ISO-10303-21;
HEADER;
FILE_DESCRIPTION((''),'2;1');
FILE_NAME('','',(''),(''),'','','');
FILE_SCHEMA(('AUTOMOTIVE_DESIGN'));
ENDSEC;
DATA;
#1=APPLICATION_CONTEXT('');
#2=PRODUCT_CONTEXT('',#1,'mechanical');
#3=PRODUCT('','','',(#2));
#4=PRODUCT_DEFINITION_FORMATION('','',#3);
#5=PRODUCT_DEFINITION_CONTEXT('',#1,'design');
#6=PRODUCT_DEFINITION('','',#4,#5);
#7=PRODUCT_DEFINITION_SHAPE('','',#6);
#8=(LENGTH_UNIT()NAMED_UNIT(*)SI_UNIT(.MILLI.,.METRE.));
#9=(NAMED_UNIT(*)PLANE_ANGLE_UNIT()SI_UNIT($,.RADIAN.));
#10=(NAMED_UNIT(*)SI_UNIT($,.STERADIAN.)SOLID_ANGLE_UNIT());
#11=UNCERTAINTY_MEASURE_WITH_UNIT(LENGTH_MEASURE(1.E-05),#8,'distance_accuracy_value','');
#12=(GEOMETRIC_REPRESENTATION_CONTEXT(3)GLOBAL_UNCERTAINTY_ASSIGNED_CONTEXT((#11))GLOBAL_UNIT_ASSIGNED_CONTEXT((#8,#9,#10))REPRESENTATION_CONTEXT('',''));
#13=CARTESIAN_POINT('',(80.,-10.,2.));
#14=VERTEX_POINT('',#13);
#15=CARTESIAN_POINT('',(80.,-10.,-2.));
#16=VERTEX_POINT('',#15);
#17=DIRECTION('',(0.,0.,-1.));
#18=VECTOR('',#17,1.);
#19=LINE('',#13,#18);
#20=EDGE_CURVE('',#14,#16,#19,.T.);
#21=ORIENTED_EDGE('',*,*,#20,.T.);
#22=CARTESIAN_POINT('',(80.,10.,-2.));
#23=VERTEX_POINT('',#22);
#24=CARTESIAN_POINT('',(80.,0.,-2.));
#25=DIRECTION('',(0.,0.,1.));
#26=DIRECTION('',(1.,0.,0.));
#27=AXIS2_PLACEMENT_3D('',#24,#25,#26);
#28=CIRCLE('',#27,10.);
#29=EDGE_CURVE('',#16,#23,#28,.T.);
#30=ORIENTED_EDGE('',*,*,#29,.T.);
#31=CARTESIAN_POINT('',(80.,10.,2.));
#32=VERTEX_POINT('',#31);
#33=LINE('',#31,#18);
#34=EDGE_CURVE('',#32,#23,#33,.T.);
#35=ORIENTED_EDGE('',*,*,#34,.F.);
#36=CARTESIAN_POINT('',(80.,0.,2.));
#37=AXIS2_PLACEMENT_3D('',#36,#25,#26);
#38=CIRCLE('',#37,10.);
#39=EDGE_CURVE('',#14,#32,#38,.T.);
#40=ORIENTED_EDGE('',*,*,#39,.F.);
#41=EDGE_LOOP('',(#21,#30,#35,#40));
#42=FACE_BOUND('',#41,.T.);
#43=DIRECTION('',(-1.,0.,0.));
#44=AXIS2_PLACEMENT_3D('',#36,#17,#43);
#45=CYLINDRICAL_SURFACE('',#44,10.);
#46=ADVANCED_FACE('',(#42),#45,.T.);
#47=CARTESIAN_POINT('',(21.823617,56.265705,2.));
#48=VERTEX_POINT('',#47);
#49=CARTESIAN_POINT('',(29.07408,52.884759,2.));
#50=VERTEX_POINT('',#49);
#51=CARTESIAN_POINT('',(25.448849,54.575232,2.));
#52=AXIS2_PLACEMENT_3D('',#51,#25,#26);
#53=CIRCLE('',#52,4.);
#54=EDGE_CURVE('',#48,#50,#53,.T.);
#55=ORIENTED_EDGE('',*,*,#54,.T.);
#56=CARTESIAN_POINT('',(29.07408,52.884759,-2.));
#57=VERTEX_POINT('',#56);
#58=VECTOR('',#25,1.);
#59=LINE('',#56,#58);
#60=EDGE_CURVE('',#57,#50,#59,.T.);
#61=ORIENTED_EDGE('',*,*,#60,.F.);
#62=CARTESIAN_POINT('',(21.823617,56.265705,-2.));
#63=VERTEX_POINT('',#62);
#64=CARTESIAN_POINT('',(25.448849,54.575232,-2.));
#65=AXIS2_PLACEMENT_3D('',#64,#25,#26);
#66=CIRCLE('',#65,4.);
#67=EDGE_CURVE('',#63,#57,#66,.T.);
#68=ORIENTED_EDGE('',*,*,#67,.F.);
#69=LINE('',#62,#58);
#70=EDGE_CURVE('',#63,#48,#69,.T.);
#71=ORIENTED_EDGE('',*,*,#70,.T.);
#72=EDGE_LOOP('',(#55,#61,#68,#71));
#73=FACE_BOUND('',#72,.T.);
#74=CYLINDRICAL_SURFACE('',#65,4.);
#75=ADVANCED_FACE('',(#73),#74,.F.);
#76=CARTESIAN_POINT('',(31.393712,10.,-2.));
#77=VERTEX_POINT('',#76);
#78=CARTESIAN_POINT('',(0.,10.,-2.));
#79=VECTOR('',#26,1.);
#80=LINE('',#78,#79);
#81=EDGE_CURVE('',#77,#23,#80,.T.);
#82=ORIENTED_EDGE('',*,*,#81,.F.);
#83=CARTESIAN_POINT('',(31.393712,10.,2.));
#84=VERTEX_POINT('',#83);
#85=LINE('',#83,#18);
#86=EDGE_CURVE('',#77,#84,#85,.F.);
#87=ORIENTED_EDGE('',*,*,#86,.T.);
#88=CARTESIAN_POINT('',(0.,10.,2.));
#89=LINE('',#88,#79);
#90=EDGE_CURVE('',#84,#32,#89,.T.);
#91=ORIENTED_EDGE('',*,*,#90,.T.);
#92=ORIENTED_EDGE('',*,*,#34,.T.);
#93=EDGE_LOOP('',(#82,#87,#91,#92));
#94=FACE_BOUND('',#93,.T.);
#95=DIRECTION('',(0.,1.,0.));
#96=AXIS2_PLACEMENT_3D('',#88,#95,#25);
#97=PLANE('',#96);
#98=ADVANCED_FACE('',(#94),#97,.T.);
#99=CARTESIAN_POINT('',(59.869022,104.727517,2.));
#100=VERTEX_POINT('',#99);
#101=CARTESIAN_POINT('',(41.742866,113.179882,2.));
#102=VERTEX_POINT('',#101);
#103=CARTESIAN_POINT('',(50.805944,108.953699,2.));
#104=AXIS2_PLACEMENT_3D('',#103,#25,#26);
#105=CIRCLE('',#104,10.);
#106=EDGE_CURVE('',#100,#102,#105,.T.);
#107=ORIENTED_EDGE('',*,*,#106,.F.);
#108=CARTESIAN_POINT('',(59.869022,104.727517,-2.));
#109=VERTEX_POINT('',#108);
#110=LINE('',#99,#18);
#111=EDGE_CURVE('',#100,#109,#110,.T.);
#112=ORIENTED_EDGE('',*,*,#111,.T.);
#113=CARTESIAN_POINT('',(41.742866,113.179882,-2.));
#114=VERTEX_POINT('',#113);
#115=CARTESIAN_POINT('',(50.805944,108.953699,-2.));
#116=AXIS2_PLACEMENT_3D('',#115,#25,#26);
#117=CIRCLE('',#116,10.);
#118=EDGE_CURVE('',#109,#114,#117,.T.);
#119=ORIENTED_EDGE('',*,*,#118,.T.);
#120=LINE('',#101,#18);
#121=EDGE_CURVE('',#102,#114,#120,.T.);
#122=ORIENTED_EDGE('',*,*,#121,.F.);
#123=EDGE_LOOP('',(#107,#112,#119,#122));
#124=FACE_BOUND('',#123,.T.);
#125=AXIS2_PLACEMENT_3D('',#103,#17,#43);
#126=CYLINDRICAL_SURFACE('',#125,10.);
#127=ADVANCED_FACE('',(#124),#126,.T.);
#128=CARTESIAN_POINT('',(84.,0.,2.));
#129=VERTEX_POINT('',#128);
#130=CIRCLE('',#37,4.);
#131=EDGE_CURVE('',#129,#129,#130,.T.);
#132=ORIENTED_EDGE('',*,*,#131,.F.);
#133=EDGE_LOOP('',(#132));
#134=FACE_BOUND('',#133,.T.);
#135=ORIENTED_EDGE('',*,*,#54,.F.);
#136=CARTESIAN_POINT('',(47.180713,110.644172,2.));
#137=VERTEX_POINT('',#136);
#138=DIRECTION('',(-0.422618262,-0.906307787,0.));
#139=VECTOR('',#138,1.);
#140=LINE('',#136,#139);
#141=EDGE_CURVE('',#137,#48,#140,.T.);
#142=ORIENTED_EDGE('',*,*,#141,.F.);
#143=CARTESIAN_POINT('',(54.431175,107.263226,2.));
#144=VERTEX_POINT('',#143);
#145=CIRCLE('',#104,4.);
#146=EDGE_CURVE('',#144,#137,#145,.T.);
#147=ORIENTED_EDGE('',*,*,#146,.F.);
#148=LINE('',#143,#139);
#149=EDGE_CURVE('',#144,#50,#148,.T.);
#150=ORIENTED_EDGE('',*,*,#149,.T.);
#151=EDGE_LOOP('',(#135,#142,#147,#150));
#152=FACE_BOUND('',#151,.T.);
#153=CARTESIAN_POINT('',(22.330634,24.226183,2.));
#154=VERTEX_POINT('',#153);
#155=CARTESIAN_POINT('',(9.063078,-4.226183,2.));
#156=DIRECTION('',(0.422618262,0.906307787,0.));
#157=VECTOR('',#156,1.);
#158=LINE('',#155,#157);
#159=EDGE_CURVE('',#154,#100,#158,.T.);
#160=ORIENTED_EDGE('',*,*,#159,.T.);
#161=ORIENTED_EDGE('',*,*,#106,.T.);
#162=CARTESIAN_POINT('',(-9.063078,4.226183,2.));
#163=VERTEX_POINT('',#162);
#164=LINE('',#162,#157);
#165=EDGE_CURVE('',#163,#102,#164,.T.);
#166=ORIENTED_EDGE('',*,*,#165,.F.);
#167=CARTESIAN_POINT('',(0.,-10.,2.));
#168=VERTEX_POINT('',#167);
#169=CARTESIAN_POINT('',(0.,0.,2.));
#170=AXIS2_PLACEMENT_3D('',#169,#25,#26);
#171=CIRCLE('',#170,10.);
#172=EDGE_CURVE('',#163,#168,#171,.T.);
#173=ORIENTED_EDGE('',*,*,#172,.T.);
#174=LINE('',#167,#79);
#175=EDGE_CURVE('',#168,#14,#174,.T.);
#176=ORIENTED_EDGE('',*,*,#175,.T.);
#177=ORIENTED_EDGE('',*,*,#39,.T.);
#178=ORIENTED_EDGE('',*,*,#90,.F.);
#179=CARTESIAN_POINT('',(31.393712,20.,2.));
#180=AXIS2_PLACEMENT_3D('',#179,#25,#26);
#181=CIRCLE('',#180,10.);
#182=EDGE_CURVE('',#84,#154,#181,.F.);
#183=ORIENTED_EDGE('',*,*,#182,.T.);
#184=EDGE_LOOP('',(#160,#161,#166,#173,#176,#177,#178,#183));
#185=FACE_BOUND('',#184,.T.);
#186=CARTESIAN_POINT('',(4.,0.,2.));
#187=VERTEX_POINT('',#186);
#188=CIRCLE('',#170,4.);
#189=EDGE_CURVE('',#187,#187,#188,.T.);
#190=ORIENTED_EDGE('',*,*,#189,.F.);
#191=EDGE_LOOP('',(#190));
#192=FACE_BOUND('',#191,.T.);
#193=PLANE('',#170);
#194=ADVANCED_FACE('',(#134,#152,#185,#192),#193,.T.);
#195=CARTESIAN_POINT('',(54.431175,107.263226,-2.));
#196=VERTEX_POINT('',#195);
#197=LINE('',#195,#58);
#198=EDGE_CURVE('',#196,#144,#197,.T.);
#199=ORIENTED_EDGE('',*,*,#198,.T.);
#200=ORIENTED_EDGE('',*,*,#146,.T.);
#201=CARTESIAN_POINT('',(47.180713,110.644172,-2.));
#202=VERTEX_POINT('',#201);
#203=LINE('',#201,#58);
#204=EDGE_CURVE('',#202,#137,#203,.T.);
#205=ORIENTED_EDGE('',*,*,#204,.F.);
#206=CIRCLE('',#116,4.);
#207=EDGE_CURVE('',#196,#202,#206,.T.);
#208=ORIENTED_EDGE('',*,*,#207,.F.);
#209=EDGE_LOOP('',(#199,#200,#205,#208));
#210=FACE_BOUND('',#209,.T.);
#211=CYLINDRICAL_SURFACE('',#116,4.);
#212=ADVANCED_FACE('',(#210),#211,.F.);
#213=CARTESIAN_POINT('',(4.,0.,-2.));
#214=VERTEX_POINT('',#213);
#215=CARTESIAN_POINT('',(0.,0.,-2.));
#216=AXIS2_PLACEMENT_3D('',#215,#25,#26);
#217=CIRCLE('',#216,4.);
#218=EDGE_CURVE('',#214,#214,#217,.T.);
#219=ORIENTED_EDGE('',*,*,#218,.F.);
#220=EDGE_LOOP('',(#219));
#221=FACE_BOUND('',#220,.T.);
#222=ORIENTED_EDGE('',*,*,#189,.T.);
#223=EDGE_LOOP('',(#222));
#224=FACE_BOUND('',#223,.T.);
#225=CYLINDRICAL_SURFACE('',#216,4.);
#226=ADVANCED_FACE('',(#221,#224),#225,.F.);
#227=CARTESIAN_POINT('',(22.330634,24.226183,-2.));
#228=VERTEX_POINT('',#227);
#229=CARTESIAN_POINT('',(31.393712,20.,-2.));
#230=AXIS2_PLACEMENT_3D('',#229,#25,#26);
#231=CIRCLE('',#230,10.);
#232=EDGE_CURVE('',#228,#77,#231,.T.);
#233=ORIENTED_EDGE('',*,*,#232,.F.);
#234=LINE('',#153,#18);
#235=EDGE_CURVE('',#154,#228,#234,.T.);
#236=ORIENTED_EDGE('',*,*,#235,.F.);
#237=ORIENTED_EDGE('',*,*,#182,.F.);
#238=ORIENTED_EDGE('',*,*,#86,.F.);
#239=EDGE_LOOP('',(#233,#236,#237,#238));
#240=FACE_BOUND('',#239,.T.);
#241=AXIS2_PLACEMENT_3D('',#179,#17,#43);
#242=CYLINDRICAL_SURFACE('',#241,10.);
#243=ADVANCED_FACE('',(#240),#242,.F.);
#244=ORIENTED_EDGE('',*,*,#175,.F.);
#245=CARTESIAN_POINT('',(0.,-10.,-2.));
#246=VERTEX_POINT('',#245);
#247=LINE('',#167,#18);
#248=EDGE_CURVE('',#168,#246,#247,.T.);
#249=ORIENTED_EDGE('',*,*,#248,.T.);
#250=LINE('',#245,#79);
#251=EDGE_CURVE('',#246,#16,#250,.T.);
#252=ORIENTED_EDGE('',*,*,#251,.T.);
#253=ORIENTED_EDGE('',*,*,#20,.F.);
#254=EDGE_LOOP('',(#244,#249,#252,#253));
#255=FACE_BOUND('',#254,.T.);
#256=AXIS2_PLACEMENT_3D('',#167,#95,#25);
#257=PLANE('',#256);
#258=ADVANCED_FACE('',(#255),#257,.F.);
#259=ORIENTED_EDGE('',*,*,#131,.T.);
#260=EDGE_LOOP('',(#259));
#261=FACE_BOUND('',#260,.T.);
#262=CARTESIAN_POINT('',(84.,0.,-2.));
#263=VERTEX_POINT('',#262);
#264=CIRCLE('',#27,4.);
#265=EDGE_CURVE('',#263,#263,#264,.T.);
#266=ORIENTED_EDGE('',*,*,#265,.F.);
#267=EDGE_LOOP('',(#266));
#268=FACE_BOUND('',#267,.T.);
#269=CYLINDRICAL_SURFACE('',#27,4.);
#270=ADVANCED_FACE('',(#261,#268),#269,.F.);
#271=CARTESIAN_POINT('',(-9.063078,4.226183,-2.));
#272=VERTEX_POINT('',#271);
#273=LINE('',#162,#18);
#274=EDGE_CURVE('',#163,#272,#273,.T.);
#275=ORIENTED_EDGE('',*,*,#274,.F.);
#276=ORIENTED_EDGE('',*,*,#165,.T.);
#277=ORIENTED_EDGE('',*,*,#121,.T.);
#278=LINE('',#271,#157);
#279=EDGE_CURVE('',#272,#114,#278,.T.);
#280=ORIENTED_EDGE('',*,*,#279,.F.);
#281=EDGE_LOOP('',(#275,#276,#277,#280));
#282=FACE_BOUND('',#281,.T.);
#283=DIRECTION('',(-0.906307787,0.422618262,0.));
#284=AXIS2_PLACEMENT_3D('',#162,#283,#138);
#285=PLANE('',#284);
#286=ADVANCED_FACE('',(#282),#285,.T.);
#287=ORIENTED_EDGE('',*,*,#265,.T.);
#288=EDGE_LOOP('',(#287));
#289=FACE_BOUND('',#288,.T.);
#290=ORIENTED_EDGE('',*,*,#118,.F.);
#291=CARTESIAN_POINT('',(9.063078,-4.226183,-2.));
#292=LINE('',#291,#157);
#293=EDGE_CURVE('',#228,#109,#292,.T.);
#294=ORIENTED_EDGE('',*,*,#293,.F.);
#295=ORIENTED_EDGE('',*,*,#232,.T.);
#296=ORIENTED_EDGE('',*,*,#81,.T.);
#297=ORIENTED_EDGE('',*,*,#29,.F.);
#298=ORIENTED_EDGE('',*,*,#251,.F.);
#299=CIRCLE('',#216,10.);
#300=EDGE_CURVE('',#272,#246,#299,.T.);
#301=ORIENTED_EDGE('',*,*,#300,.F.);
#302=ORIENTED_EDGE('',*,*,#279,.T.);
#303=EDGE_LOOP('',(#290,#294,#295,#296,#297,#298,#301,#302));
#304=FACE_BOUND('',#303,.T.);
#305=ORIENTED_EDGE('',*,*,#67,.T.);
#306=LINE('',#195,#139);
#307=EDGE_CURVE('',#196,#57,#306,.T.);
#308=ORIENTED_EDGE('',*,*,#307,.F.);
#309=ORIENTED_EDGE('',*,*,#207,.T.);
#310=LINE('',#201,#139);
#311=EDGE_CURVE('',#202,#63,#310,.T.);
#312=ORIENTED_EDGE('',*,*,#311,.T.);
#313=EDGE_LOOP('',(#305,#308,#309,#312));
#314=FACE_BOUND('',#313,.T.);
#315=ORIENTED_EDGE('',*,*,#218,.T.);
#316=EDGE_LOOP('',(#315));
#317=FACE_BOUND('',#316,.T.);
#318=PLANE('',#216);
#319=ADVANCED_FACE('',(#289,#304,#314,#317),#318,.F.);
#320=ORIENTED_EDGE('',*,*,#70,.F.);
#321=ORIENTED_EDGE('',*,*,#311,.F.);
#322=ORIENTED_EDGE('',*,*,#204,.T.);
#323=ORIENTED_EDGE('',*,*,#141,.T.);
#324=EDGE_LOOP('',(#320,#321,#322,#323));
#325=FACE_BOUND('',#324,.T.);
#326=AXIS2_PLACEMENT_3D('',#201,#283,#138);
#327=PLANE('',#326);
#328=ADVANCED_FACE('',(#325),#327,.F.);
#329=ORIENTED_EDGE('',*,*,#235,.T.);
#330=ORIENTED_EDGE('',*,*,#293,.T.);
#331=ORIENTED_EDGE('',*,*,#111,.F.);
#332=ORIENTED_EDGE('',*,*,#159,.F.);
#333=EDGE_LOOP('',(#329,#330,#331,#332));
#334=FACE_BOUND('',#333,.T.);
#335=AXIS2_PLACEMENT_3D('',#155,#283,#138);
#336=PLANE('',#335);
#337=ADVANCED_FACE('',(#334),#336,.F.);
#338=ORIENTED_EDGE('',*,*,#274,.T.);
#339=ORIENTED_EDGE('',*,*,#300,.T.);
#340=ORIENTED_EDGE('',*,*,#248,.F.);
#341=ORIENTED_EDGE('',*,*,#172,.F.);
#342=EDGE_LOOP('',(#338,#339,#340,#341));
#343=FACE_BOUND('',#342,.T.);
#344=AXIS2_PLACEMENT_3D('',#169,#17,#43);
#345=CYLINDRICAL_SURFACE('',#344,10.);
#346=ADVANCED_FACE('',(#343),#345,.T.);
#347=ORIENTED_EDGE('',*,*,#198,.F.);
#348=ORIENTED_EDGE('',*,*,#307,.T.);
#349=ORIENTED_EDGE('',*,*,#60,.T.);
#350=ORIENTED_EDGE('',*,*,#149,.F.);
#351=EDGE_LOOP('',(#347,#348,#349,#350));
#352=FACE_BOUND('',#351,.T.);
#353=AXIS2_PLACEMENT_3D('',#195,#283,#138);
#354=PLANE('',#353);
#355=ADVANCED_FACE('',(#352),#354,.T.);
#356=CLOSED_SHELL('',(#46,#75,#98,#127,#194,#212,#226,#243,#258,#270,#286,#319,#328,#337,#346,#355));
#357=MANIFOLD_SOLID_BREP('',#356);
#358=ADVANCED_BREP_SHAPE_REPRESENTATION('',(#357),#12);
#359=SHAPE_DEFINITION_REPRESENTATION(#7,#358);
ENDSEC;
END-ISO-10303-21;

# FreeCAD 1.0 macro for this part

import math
import FreeCAD as App
import Part
import Sketcher
Q = App.Units.Quantity


def edges_at(feature, points):
    """Names of the edges that pass closest to the given points."""
    edges = feature.Shape.Edges
    near = lambda p: min(range(len(edges)), key=lambda i: edges[i].distToShape(Part.Vertex(*p))[0])
    return sorted({f"Edge{near(p) + 1}" for p in points})

doc = App.newDocument("Part")
params = doc.addObject("Spreadsheet::Sheet", "Params")
for row, (alias, value) in enumerate([
    ("sketch1_radius", "10 mm"),
    ("sketch1_width", "80 mm"),
    ("pad1_length", "4 mm"),
    ("sketch2_radius", "4 mm"),
    ("sketch2_length", "60 mm"),
    ("sketch3_diameter", "8 mm"),
    ("fillet_radius", "10 mm"),
], start=1):
    params.set(f"A{row}", alias)
    params.set(f"B{row}", "=" + value)
    params.setAlias(f"B{row}", alias)

body = doc.addObject("PartDesign::Body", "Body")

# Sketch on XY plane
sketch1 = body.newObject("Sketcher::SketchObject", "Sketch")
sketch1.AttachmentSupport = (doc.getObject("XY_Plane"), [""])
sketch1.MapMode = "FlatFace"
sketch1.addGeometry(Part.ArcOfCircle(Part.Circle(App.Vector(0, 0, 0), App.Vector(0, 0, 1), 10), math.radians(155), math.radians(270)), False)
sketch1.addGeometry(Part.LineSegment(App.Vector(0, -10, 0), App.Vector(80, -10, 0)), False)
sketch1.addGeometry(Part.ArcOfCircle(Part.Circle(App.Vector(80, 0, 0), App.Vector(0, 0, 1), 10), math.radians(-90), math.radians(90)), False)
sketch1.addGeometry(Part.LineSegment(App.Vector(80, 10, 0), App.Vector(16, 10, 0)), False)
sketch1.addGeometry(Part.LineSegment(App.Vector(16, 10, 0), App.Vector(60, 105, 0)), False)
sketch1.addGeometry(Part.ArcOfCircle(Part.Circle(App.Vector(51, 109, 0), App.Vector(0, 0, 1), 10), math.radians(-25), math.radians(155)), False)
sketch1.addGeometry(Part.LineSegment(App.Vector(42, 113, 0), App.Vector(-9, 4, 0)), False)
sketch1.addConstraint(Sketcher.Constraint("Tangent", 0, 2, 1, 1))
sketch1.addConstraint(Sketcher.Constraint("Tangent", 1, 2, 2, 1))
sketch1.addConstraint(Sketcher.Constraint("Tangent", 2, 2, 3, 1))
sketch1.addConstraint(Sketcher.Constraint("Coincident", 3, 2, 4, 1))
sketch1.addConstraint(Sketcher.Constraint("Tangent", 4, 2, 5, 1))
sketch1.addConstraint(Sketcher.Constraint("Tangent", 5, 2, 6, 1))
sketch1.addConstraint(Sketcher.Constraint("Tangent", 6, 2, 0, 1))
sketch1.addConstraint(Sketcher.Constraint("Horizontal", 1))
sketch1.addConstraint(Sketcher.Constraint("Horizontal", 3))
sketch1.addConstraint(Sketcher.Constraint("Coincident", 0, 3, -1, 1))
sketch1.addConstraint(Sketcher.Constraint("Equal", 0, 2))
sketch1.addConstraint(Sketcher.Constraint("Equal", 2, 5))
sketch1.addConstraint(Sketcher.Constraint("Parallel", 4, 6))
sketch1.addConstraint(Sketcher.Constraint("Radius", 0, Q("10 mm")))
sketch1.addConstraint(Sketcher.Constraint("DistanceX", 1, 1, 1, 2, Q("80 mm")))
sketch1.addConstraint(Sketcher.Constraint("Angle", 4, Q("65 deg")))
sketch1.addConstraint(Sketcher.Constraint("DistanceY", -1, 1, 5, 3, Q("108.953699 mm")))
sketch1.setExpression("Constraints[13]", "Params.sketch1_radius")
sketch1.setExpression("Constraints[14]", "Params.sketch1_width")
pad1 = body.newObject("PartDesign::Pad", "Pad")
pad1.Profile = sketch1
pad1.setExpression("Length", "Params.pad1_length")
pad1.Midplane = True

# Sketch on XY plane
sketch2 = body.newObject("Sketcher::SketchObject", "Sketch001")
sketch2.AttachmentSupport = (doc.getObject("XY_Plane"), [""])
sketch2.MapMode = "FlatFace"
sketch2.addGeometry(Part.LineSegment(App.Vector(29.1, 52.9, 0), App.Vector(54.4, 107.3, 0)), False)
sketch2.addGeometry(Part.ArcOfCircle(Part.Circle(App.Vector(50.8, 109, 0), App.Vector(0, 0, 1), 4), math.radians(-25), math.radians(155)), False)
sketch2.addGeometry(Part.LineSegment(App.Vector(47.2, 110.6, 0), App.Vector(21.8, 56.3, 0)), False)
sketch2.addGeometry(Part.ArcOfCircle(Part.Circle(App.Vector(25.4, 54.6, 0), App.Vector(0, 0, 1), 4), math.radians(155), math.radians(335)), False)
sketch2.addConstraint(Sketcher.Constraint("Tangent", 0, 2, 1, 1))
sketch2.addConstraint(Sketcher.Constraint("Tangent", 1, 2, 2, 1))
sketch2.addConstraint(Sketcher.Constraint("Tangent", 2, 2, 3, 1))
sketch2.addConstraint(Sketcher.Constraint("Tangent", 3, 2, 0, 1))
sketch2.addConstraint(Sketcher.Constraint("Equal", 1, 3))
sketch2.addConstraint(Sketcher.Constraint("Radius", 1, Q("4 mm")))
sketch2.addConstraint(Sketcher.Constraint("Angle", 0, Q("65 deg")))
sketch2.addConstraint(Sketcher.Constraint("Distance", 0, Q("60 mm")))
sketch2.addConstraint(Sketcher.Constraint("DistanceY", -1, 1, 1, 3, Q("108.953699 mm")))
sketch2.addConstraint(Sketcher.Constraint("DistanceX", -1, 1, 3, 3, Q("25.448849 mm")))
sketch2.setExpression("Constraints[5]", "Params.sketch2_radius")
sketch2.setExpression("Constraints[7]", "Params.sketch2_length")
pocket1 = body.newObject("PartDesign::Pocket", "Pocket")
pocket1.Profile = sketch2
pocket1.Type = "ThroughAll"
pocket1.Midplane = True

# Sketch on XY plane
sketch3 = body.newObject("Sketcher::SketchObject", "Sketch002")
sketch3.AttachmentSupport = (doc.getObject("XY_Plane"), [""])
sketch3.MapMode = "FlatFace"
sketch3.addGeometry(Part.Circle(App.Vector(80, 0, 0), App.Vector(0, 0, 1), 4), False)
sketch3.addGeometry(Part.Circle(App.Vector(0, 0, 0), App.Vector(0, 0, 1), 4), False)
sketch3.addConstraint(Sketcher.Constraint("Coincident", 1, 3, -1, 1))
sketch3.addConstraint(Sketcher.Constraint("Equal", 0, 1))
sketch3.addConstraint(Sketcher.Constraint("PointOnObject", 0, 3, -1))
sketch3.addConstraint(Sketcher.Constraint("Diameter", 0, Q("8 mm")))
sketch3.addConstraint(Sketcher.Constraint("DistanceX", -1, 1, 0, 3, Q("80 mm")))
sketch3.setExpression("Constraints[3]", "Params.sketch3_diameter")
pocket2 = body.newObject("PartDesign::Pocket", "Pocket001")
pocket2.Profile = sketch3
pocket2.Type = "ThroughAll"
pocket2.Midplane = True
doc.recompute()

fillet = body.newObject("PartDesign::Fillet", "Fillet")
fillet.Base = (pocket2, edges_at(pocket2, [(15.697, 10, 0)]))
fillet.setExpression("Radius", "Params.fillet_radius")

doc.recompute()
